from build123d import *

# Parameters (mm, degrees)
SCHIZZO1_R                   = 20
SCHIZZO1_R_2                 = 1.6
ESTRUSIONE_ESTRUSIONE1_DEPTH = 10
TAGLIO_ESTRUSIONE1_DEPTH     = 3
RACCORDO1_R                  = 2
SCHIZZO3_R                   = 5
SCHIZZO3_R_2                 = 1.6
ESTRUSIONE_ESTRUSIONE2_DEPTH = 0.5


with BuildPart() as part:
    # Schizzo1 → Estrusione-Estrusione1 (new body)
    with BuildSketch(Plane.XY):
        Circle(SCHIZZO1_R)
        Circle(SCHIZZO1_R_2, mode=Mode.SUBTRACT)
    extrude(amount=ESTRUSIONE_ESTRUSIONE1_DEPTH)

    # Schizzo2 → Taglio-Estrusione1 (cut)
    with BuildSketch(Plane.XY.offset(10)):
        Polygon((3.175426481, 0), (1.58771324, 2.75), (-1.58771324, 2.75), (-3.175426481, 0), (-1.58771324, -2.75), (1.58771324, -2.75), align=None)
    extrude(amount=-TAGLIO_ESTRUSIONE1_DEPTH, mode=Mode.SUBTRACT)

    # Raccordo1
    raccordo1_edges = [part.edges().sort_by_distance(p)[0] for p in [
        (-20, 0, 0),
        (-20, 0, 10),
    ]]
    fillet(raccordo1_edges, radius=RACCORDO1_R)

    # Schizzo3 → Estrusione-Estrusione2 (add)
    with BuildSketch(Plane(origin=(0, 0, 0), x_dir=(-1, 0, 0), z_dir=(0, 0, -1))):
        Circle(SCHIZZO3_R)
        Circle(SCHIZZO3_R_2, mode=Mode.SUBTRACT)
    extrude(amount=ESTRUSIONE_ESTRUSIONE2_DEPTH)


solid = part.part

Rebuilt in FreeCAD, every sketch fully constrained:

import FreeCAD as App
import Part
import Sketcher

V = App.Vector
Q = App.Units.Quantity


def edges_at(feature, points):
    """Names of the edges that pass closest to the given points."""
    edges = feature.Shape.Edges
    near = lambda p: min(range(len(edges)), key=lambda i: edges[i].distToShape(Part.Vertex(*p))[0])
    return sorted({f"Edge{near(p) + 1}" for p in points})

doc = App.newDocument("Part")
body = doc.addObject("PartDesign::Body", "Body")

# Sketch on XY plane
sketch1 = doc.addObject("Sketcher::SketchObject", "Sketch")
body.addObject(sketch1)
sketch1.AttachmentSupport = (doc.XY_Plane, [""])
sketch1.MapMode = "FlatFace"
sketch1.addGeometry(Part.Circle(V(0, 0, 0), V(0, 0, 1), 20), False)
sketch1.addGeometry(Part.Circle(V(0, 0, 0), V(0, 0, 1), 1.6), False)
sketch1.addConstraint(Sketcher.Constraint("Coincident", 0, 3, -1, 1))
sketch1.addConstraint(Sketcher.Constraint("Coincident", 1, 3, -1, 1))
sketch1.addConstraint(Sketcher.Constraint("Diameter", 0, 40.0))
sketch1.addConstraint(Sketcher.Constraint("Diameter", 1, 3.2))
pad1 = doc.addObject("PartDesign::Pad", "Pad")
body.addObject(pad1)
pad1.Profile = sketch1
pad1.Length = 10

# Sketch on XY plane
sketch2 = doc.addObject("Sketcher::SketchObject", "Sketch001")
body.addObject(sketch2)
sketch2.AttachmentSupport = (doc.XY_Plane, [""])
sketch2.MapMode = "FlatFace"
sketch2.AttachmentOffset = App.Placement(V(0, 0, 10), App.Rotation())
sketch2.addGeometry(Part.LineSegment(V(3.2, 0, 0), V(1.6, 2.8, 0)), False)
sketch2.addGeometry(Part.LineSegment(V(1.6, 2.8, 0), V(-1.6, 2.8, 0)), False)
sketch2.addGeometry(Part.LineSegment(V(-1.6, 2.8, 0), V(-3.2, 0, 0)), False)
sketch2.addGeometry(Part.LineSegment(V(-3.2, 0, 0), V(-1.6, -2.8, 0)), False)
sketch2.addGeometry(Part.LineSegment(V(-1.6, -2.8, 0), V(1.6, -2.8, 0)), False)
sketch2.addGeometry(Part.LineSegment(V(1.6, -2.8, 0), V(3.2, 0, 0)), False)
sketch2.addConstraint(Sketcher.Constraint("Coincident", 0, 2, 1, 1))
sketch2.addConstraint(Sketcher.Constraint("Coincident", 1, 2, 2, 1))
sketch2.addConstraint(Sketcher.Constraint("Coincident", 2, 2, 3, 1))
sketch2.addConstraint(Sketcher.Constraint("Coincident", 3, 2, 4, 1))
sketch2.addConstraint(Sketcher.Constraint("Coincident", 4, 2, 5, 1))
sketch2.addConstraint(Sketcher.Constraint("Coincident", 5, 2, 0, 1))
sketch2.addConstraint(Sketcher.Constraint("Horizontal", 1))
sketch2.addConstraint(Sketcher.Constraint("Horizontal", 4))
sketch2.addConstraint(Sketcher.Constraint("Symmetric", 0, 2, 3, 2, -1, 1))
sketch2.addConstraint(Sketcher.Constraint("Symmetric", 2, 2, 5, 2, -1, 1))
sketch2.addConstraint(Sketcher.Constraint("PointOnObject", 2, 2, -1))
sketch2.addConstraint(Sketcher.Constraint("Parallel", 2, 5))
sketch2.addConstraint(Sketcher.Constraint("Vertical", 1, 2, 3, 2))
sketch2.addConstraint(Sketcher.Constraint("Angle", 0, Q("120 deg")))
sketch2.addConstraint(Sketcher.Constraint("DistanceY", 3, 2, 1, 2, 5.5))
sketch2.addConstraint(Sketcher.Constraint("DistanceX", 1, 2, 1, 1, 3.175426))
pocket1 = doc.addObject("PartDesign::Pocket", "Pocket")
body.addObject(pocket1)
pocket1.Profile = sketch2
pocket1.Length = 3
doc.recompute()

fillet = doc.addObject("PartDesign::Fillet", "Fillet")
body.addObject(fillet)
fillet.Base = (pocket1, edges_at(pocket1, [(-20, 0, 0), (-20, 0, 10)]))
fillet.Radius = 2

# Sketch on XY plane
sketch3 = doc.addObject("Sketcher::SketchObject", "Sketch002")
body.addObject(sketch3)
sketch3.AttachmentSupport = (doc.XY_Plane, [""])
sketch3.MapMode = "FlatFace"
sketch3.addGeometry(Part.Circle(V(0, 0, 0), V(0, 0, 1), 5), False)
sketch3.addGeometry(Part.Circle(V(0, 0, 0), V(0, 0, 1), 1.6), False)
sketch3.addConstraint(Sketcher.Constraint("Coincident", 0, 3, -1, 1))
sketch3.addConstraint(Sketcher.Constraint("Coincident", 1, 3, -1, 1))
sketch3.addConstraint(Sketcher.Constraint("Diameter", 0, 10.0))
sketch3.addConstraint(Sketcher.Constraint("Diameter", 1, 3.2))
pad2 = doc.addObject("PartDesign::Pad", "Pad001")
body.addObject(pad2)
pad2.Profile = sketch3
pad2.Length = 0.5
pad2.Reversed = True

doc.recompute()
